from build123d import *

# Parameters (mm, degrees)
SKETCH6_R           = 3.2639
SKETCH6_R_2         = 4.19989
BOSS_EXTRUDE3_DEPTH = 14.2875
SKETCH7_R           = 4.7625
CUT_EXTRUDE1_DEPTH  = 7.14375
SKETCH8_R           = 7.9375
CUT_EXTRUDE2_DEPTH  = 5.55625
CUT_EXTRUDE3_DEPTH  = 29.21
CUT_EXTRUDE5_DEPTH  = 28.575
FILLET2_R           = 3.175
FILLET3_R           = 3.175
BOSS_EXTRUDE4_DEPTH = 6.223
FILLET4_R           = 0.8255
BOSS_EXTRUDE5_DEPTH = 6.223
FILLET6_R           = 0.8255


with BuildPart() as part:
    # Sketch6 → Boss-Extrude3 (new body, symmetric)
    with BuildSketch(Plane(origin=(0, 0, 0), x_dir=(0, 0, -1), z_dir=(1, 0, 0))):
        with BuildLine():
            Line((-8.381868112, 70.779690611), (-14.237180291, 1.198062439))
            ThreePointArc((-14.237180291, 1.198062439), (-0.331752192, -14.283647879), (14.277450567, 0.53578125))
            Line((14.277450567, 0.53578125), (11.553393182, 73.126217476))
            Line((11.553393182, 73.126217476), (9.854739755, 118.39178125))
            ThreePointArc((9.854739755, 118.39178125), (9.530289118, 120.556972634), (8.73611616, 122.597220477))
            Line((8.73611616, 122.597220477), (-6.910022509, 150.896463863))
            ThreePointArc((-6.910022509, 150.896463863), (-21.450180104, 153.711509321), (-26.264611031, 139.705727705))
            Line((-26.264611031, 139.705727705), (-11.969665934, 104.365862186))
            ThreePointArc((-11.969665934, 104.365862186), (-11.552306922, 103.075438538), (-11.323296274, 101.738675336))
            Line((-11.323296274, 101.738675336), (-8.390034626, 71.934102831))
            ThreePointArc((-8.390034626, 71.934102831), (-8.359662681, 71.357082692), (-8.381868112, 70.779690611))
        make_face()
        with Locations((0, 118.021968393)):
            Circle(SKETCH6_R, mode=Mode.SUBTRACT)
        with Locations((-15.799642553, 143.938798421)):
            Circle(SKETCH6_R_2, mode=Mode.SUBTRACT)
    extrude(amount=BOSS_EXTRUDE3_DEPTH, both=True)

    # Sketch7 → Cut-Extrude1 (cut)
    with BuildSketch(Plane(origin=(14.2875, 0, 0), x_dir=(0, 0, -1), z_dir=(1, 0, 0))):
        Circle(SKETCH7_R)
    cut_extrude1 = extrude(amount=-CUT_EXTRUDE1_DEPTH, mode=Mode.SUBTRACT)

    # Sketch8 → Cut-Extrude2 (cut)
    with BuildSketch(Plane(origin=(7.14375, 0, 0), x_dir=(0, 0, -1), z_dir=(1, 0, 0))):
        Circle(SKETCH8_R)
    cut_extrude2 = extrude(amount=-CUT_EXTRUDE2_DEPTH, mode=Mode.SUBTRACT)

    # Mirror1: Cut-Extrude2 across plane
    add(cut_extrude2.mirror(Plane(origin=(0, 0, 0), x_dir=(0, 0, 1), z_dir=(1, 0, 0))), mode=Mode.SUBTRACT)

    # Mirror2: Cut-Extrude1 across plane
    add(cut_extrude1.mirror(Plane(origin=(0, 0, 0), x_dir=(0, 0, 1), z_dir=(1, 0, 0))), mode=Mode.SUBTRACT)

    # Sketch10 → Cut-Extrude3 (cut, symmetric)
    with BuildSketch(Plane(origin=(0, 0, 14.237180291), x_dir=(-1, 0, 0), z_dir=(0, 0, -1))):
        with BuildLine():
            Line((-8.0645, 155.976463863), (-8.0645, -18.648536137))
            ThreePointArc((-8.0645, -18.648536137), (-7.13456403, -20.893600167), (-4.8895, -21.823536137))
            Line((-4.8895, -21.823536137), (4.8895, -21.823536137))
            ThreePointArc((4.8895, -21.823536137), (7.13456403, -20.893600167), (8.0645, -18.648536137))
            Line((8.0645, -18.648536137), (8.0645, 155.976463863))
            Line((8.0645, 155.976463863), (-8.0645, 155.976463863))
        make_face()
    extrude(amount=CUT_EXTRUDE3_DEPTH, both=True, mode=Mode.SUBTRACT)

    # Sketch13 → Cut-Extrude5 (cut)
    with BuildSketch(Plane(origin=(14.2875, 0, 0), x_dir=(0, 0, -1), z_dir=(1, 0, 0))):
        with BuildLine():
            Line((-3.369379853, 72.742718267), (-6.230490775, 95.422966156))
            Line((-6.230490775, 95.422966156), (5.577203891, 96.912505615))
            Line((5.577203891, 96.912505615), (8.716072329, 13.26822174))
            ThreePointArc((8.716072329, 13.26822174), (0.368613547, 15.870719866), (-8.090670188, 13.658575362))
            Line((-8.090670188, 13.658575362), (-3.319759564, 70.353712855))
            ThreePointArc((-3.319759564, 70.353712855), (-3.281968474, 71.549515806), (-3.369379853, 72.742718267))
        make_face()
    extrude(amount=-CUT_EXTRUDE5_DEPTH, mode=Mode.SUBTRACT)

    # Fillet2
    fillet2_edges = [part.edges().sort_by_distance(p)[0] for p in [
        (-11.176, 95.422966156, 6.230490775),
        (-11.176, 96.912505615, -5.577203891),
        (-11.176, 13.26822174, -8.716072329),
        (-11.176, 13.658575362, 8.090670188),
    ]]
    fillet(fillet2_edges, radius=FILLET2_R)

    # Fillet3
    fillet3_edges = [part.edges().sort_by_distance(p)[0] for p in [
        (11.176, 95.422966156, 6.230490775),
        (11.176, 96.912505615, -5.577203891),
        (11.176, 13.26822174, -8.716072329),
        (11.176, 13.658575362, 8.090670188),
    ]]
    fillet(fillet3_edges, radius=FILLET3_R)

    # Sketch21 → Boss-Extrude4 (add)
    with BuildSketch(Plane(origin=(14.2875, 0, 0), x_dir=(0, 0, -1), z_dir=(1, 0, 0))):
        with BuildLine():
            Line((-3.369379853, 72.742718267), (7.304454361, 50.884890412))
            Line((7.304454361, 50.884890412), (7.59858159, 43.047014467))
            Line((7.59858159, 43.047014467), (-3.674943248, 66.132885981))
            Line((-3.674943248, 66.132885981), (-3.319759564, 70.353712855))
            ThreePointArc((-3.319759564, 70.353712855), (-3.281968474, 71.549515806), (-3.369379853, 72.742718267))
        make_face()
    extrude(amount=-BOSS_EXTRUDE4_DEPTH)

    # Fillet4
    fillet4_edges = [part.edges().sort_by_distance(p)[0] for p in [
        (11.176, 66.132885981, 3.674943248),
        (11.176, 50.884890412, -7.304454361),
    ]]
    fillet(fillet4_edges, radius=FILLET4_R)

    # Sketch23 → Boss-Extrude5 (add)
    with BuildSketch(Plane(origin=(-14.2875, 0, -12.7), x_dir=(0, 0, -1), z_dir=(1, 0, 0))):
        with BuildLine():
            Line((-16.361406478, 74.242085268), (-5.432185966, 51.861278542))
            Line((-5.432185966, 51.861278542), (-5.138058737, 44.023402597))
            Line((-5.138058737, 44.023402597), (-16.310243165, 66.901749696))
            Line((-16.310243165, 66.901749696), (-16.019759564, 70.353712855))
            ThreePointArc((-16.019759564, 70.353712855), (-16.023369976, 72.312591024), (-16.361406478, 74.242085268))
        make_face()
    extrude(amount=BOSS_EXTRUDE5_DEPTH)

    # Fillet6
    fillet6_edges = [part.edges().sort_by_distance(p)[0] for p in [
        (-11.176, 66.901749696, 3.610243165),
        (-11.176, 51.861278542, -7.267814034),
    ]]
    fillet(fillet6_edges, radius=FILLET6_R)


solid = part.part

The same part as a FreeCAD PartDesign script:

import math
import FreeCAD as App
import Part
import Sketcher
Q = App.Units.Quantity


def edges_at(feature, points):
    """Names of the edges that pass closest to the given points."""
    edges = feature.Shape.Edges
    near = lambda p: min(range(len(edges)), key=lambda i: edges[i].distToShape(Part.Vertex(*p))[0])
    return sorted({f"Edge{near(p) + 1}" for p in points})

doc = App.newDocument("Part")
params = doc.addObject("Spreadsheet::Sheet", "Params")
for row, (alias, value) in enumerate([
    ("sketch1_radius", "0.25 in"),
    ("sketch1_diameter", "0.257 in"),
    ("sketch1_radius2", "0.5625 in"),
    ("pad1_length", "1.125 in"),
    ("sketch2_diameter", "0.375 in"),
    ("pocket1_length", "0.28125 in"),
    ("sketch3_diameter", "0.625 in"),
    ("pocket2_length", "0.21875 in"),
    ("sketch4_radius", "0.125 in"),
    ("sketch4_width", "0.385 in"),
    ("pocket3_length", "2.3 in"),
    ("sketch5_radius", "0.45 in"),
    ("sketch5_radius2", "0.625 in"),
    ("sketch5_length", "0.9 in"),
    ("pocket4_length", "1.125 in"),
    ("fillet_radius", "0.125 in"),
    ("fillet2_radius", "0.125 in"),
    ("sketch6_radius", "0.45 in"),
    ("pad2_length", "0.245 in"),
    ("fillet3_radius", "0.0325 in"),
    ("sketch7_radius", "0.45 in"),
    ("pad3_length", "0.245 in"),
    ("fillet4_radius", "0.0325 in"),
], start=1):
    params.set(f"A{row}", alias)
    params.set(f"B{row}", "=" + value)
    params.setAlias(f"B{row}", alias)

body = doc.addObject("PartDesign::Body", "Body")
body.AllowCompound = True

sketch1 = body.newObject("Sketcher::SketchObject", "Sketch")
sketch1.AttachmentSupport = (doc.getObject("YZ_Plane"), [""])
sketch1.MapMode = "FlatFace"
sketch1.addGeometry([
    Part.LineSegment(App.Vector(70.8, 8.4, 0), App.Vector(1.2, 14.2, 0)),
    Part.ArcOfCircle(Part.Circle(App.Vector(0, 0, 0), App.Vector(0, 0, 1), 14.3), math.radians(85), math.radians(272)),
    Part.LineSegment(App.Vector(0.5, -14.3, 0), App.Vector(73.1, -11.6, 0)),
    Part.LineSegment(App.Vector(73.1, -11.6, 0), App.Vector(118.4, -9.9, 0)),
    Part.ArcOfCircle(Part.Circle(App.Vector(118, 0, 0), App.Vector(0, 0, 1), 9.9), math.radians(-88), math.radians(-62)),
    Part.LineSegment(App.Vector(122.6, -8.7, 0), App.Vector(150.9, 6.9, 0)),
    Part.ArcOfCircle(Part.Circle(App.Vector(143.9, 15.8, 0), App.Vector(0, 0, 1), 11.3), math.radians(-52), math.radians(112)),
    Part.LineSegment(App.Vector(139.7, 26.3, 0), App.Vector(104.4, 12, 0)),
    Part.ArcOfCircle(Part.Circle(App.Vector(100.8, 20.8, 0), App.Vector(0, 0, 1), 9.5), math.radians(-84.38), math.radians(-67.98)),
    Part.LineSegment(App.Vector(101.7, 11.3, 0), App.Vector(71.9, 8.4, 0)),
    Part.ArcOfCircle(Part.Circle(App.Vector(71.3, 14.7, 0), App.Vector(0, 0, 1), 6.4), math.radians(-94.81), math.radians(-84.38)),
    Part.Circle(App.Vector(118, 0, 0), App.Vector(0, 0, 1), 3.3),
    Part.Circle(App.Vector(143.9, 15.8, 0), App.Vector(0, 0, 1), 4.2),
], False)
sketch1.addConstraint([
    Sketcher.Constraint("Tangent", 0, 2, 1, 1),
    Sketcher.Constraint("Tangent", 1, 2, 2, 1),
    Sketcher.Constraint("Coincident", 2, 2, 3, 1),
    Sketcher.Constraint("Tangent", 3, 2, 4, 1),
    Sketcher.Constraint("Coincident", 4, 2, 5, 1),
    Sketcher.Constraint("Coincident", 5, 2, 6, 1),
    Sketcher.Constraint("Tangent", 6, 2, 7, 1),
    Sketcher.Constraint("Tangent", 7, 2, 8, 2),
    Sketcher.Constraint("Tangent", 8, 1, 9, 1),
    Sketcher.Constraint("Tangent", 9, 2, 10, 2),
    Sketcher.Constraint("Tangent", 10, 1, 0, 1),
    Sketcher.Constraint("Coincident", 1, 3, -1, 1),
    Sketcher.Constraint("Coincident", 11, 3, 4, 3),
    Sketcher.Constraint("Coincident", 12, 3, 6, 3),
    Sketcher.Constraint("PointOnObject", 4, 3, -1),
    Sketcher.Constraint("Parallel", 2, 3),
    Sketcher.Constraint("Radius", 10, Q("0.25 in")),
    Sketcher.Constraint("Diameter", 11, Q("0.257 in")),
    Sketcher.Constraint("Radius", 1, Q("0.5625 in")),
    Sketcher.Constraint("Diameter", 12, Q("0.3307 in")),
    Sketcher.Constraint("Radius", 4, 9.861676),
    Sketcher.Constraint("Radius", 6, 11.288687),
    Sketcher.Constraint("Radius", 8, 9.483055),
    Sketcher.Constraint("DistanceX", -1, 1, 6, 3, 143.938798),
    Sketcher.Constraint("DistanceX", 0, 2, 10, 3, 70.1141),
    Sketcher.Constraint("DistanceX", 8, 3, 8, 1, 0.928802),
    Sketcher.Constraint("Distance", 2, 72.64153),
    Sketcher.Constraint("DistanceX", -1, 1, 4, 3, 118.021968),
    Sketcher.Constraint("DistanceY", -1, 1, 0, 2, 14.23718),
    Sketcher.Constraint("DistanceX", -1, 1, 4, 2, 122.59722),
    Sketcher.Constraint("DistanceY", -1, 1, 6, 2, 26.264611),
    Sketcher.Constraint("DistanceX", 10, 3, 8, 3, 29.497711),
    Sketcher.Constraint("DistanceY", 5, 2, 12, 3, 8.88962),
])
sketch1.setExpression("Constraints[16]", "Params.sketch1_radius")
sketch1.setExpression("Constraints[17]", "Params.sketch1_diameter")
sketch1.setExpression("Constraints[18]", "Params.sketch1_radius2")
pad1 = body.newObject("PartDesign::Pad", "Pad")
pad1.Profile = sketch1
pad1.setExpression("Length", "Params.pad1_length")
pad1.Midplane = True

sketch2 = body.newObject("Sketcher::SketchObject", "Sketch001")
sketch2.AttachmentSupport = (doc.getObject("YZ_Plane"), [""])
sketch2.MapMode = "FlatFace"
sketch2.AttachmentOffset = App.Placement(App.Vector(0, 0, 0.5625 * 25.4), App.Rotation())
sketch2.addGeometry(Part.Circle(App.Vector(0, 0, 0), App.Vector(0, 0, 1), 4.8), False)
sketch2.addConstraint([
    Sketcher.Constraint("Coincident", 0, 3, -1, 1),
    Sketcher.Constraint("Diameter", 0, Q("0.375 in")),
])
sketch2.setExpression("Constraints[1]", "Params.sketch2_diameter")
pocket1 = body.newObject("PartDesign::Pocket", "Pocket")
pocket1.Profile = sketch2
pocket1.setExpression("Length", "Params.pocket1_length")

sketch3 = body.newObject("Sketcher::SketchObject", "Sketch002")
sketch3.AttachmentSupport = (doc.getObject("YZ_Plane"), [""])
sketch3.MapMode = "FlatFace"
sketch3.AttachmentOffset = App.Placement(App.Vector(0, 0, 0.28125 * 25.4), App.Rotation())
sketch3.addGeometry(Part.Circle(App.Vector(0, 0, 0), App.Vector(0, 0, 1), 8), False)
sketch3.addConstraint([
    Sketcher.Constraint("Coincident", 0, 3, -1, 1),
    Sketcher.Constraint("Diameter", 0, Q("0.625 in")),
])
sketch3.setExpression("Constraints[1]", "Params.sketch3_diameter")
pocket2 = body.newObject("PartDesign::Pocket", "Pocket001")
pocket2.Profile = sketch3
pocket2.setExpression("Length", "Params.pocket2_length")
doc.recompute()

mirrored = body.newObject("PartDesign::Mirrored", "Mirrored")
mirrored.Originals = [pocket2]
mirrored.MirrorPlane = (doc.getObject("YZ_Plane"), [""])
body.Tip = mirrored
doc.recompute()

mirrored2 = body.newObject("PartDesign::Mirrored", "Mirrored001")
mirrored2.Originals = [pocket1]
mirrored2.MirrorPlane = (doc.getObject("YZ_Plane"), [""])
body.Tip = mirrored2

sketch4 = body.newObject("Sketcher::SketchObject", "Sketch003")
sketch4.AttachmentSupport = (doc.getObject("XY_Plane"), [""])
sketch4.MapMode = "FlatFace"
sketch4.AttachmentOffset = App.Placement(App.Vector(0, 0, 14.23718), App.Rotation())
sketch4.addGeometry([
    Part.LineSegment(App.Vector(8.1, 156, 0), App.Vector(8.1, -18.6, 0)),
    Part.ArcOfCircle(Part.Circle(App.Vector(4.9, -18.6, 0), App.Vector(0, 0, 1), 3.2), math.radians(-90), math.radians(0)),
    Part.LineSegment(App.Vector(4.9, -21.8, 0), App.Vector(-4.9, -21.8, 0)),
    Part.ArcOfCircle(Part.Circle(App.Vector(-4.9, -18.6, 0), App.Vector(0, 0, 1), 3.2), math.radians(-180), math.radians(-90)),
    Part.LineSegment(App.Vector(-8.1, -18.6, 0), App.Vector(-8.1, 156, 0)),
    Part.LineSegment(App.Vector(-8.1, 156, 0), App.Vector(8.1, 156, 0)),
], False)
sketch4.addConstraint([
    Sketcher.Constraint("Tangent", 0, 2, 1, 2),
    Sketcher.Constraint("Tangent", 1, 1, 2, 1),
    Sketcher.Constraint("Tangent", 2, 2, 3, 2),
    Sketcher.Constraint("Tangent", 3, 1, 4, 1),
    Sketcher.Constraint("Coincident", 4, 2, 5, 1),
    Sketcher.Constraint("Coincident", 5, 2, 0, 1),
    Sketcher.Constraint("Vertical", 0),
    Sketcher.Constraint("Horizontal", 2),
    Sketcher.Constraint("Vertical", 4),
    Sketcher.Constraint("Horizontal", 5),
    Sketcher.Constraint("Equal", 1, 3),
    Sketcher.Constraint("Radius", 1, Q("0.125 in")),
    Sketcher.Constraint("DistanceY", 2, 2, 4, 2, Q("7 in")),
    Sketcher.Constraint("DistanceX", 2, 2, 2, 1, Q("0.385 in")),
    Sketcher.Constraint("DistanceX", -1, 1, 1, 3, Q("0.1925 in")),
    Sketcher.Constraint("DistanceY", 1, 3, -1, 1, 18.648536),
])
sketch4.setExpression("Constraints[11]", "Params.sketch4_radius")
sketch4.setExpression("Constraints[13]", "Params.sketch4_width")
pocket3 = body.newObject("PartDesign::Pocket", "Pocket002")
pocket3.Profile = sketch4
pocket3.setExpression("Length", "Params.pocket3_length")
pocket3.Midplane = True

sketch5 = body.newObject("Sketcher::SketchObject", "Sketch004")
sketch5.AttachmentSupport = (doc.getObject("YZ_Plane"), [""])
sketch5.MapMode = "FlatFace"
sketch5.AttachmentOffset = App.Placement(App.Vector(0, 0, 0.5625 * 25.4), App.Rotation())
sketch5.addGeometry([
    Part.LineSegment(App.Vector(95.422966, 6.230491, 0), App.Vector(72.742718, 3.36938, 0)),
    Part.ArcOfCircle(Part.Circle(App.Vector(71.312163, 14.709504, 0), App.Vector(0, 0, 1), 11.43), math.radians(-94.810122), math.radians(-82.810122)),
    Part.LineSegment(App.Vector(70.353713, 3.31976, 0), App.Vector(13.658575, 8.09067, 0)),
    Part.ArcOfCircle(Part.Circle(App.Vector(0, 0, 0), App.Vector(0, 0, 1), 15.875), math.radians(-33.301447), math.radians(30.64042)),
    Part.LineSegment(App.Vector(13.268222, -8.716072, 0), App.Vector(96.912506, -5.577204, 0)),
    Part.LineSegment(App.Vector(96.912506, -5.577204, 0), App.Vector(95.422966, 6.230491, 0)),
], False)
sketch5.addConstraint([
    Sketcher.Constraint("Coincident", 0, 2, 1, 2),
    Sketcher.Constraint("Coincident", 1, 1, 2, 1),
    Sketcher.Constraint("Coincident", 2, 2, 3, 2),
    Sketcher.Constraint("Coincident", 3, 1, 4, 1),
    Sketcher.Constraint("Coincident", 4, 2, 5, 1),
    Sketcher.Constraint("Coincident", 5, 2, 0, 1),
    Sketcher.Constraint("Coincident", 3, 3, -1, 1),
    Sketcher.Constraint("Radius", 1, Q("0.45 in")),
    Sketcher.Constraint("Radius", 3, Q("0.625 in")),
    Sketcher.Constraint("Distance", 0, Q("0.9 in")),
    Sketcher.Constraint("Distance", 4, Q("3.2953999 in")),
    Sketcher.Constraint("Distance", 2, 56.89552),
    Sketcher.Constraint("DistanceX", -1, 1, 0, 2, 72.742718),
    Sketcher.Constraint("DistanceY", -1, 1, 0, 2, 3.36938),
    Sketcher.Constraint("DistanceY", -1, 1, 1, 1, 3.31976),
    Sketcher.Constraint("DistanceY", -1, 1, 2, 2, 8.09067),
    Sketcher.Constraint("DistanceX", -1, 1, 3, 1, 13.268222),
    Sketcher.Constraint("DistanceY", -1, 1, 5, 2, 6.230491),
    Sketcher.Constraint("DistanceY", 3, 1, 4, 2, 3.138868),
])
sketch5.setExpression("Constraints[7]", "Params.sketch5_radius")
sketch5.setExpression("Constraints[8]", "Params.sketch5_radius2")
sketch5.setExpression("Constraints[9]", "Params.sketch5_length")
pocket4 = body.newObject("PartDesign::Pocket", "Pocket003")
pocket4.Profile = sketch5
pocket4.setExpression("Length", "Params.pocket4_length")
doc.recompute()

fillet = body.newObject("PartDesign::Fillet", "Fillet")
fillet.Base = (pocket4, edges_at(pocket4, [
    (-11.176, 95.423, 6.23),
    (-11.176, 96.913, -5.577),
    (-11.176, 13.268, -8.716),
    (-11.176, 13.659, 8.091),
]))
fillet.setExpression("Radius", "Params.fillet_radius")
doc.recompute()

fillet2 = body.newObject("PartDesign::Fillet", "Fillet001")
fillet2.Base = (fillet, edges_at(fillet, [
    (11.176, 95.423, 6.23),
    (11.176, 96.913, -5.577),
    (11.176, 13.268, -8.716),
    (11.176, 13.659, 8.091),
]))
fillet2.setExpression("Radius", "Params.fillet2_radius")

sketch6 = body.newObject("Sketcher::SketchObject", "Sketch005")
sketch6.AttachmentSupport = (doc.getObject("YZ_Plane"), [""])
sketch6.MapMode = "FlatFace"
sketch6.AttachmentOffset = App.Placement(App.Vector(0, 0, 0.5625 * 25.4), App.Rotation())
sketch6.addGeometry([
    Part.LineSegment(App.Vector(50.9, -7.3, 0), App.Vector(72.7, 3.4, 0)),
    Part.ArcOfCircle(Part.Circle(App.Vector(71.3, 14.7, 0), App.Vector(0, 0, 1), 11.4), math.radians(-94.81), math.radians(-82.81)),
    Part.LineSegment(App.Vector(70.4, 3.3, 0), App.Vector(66.1, 3.7, 0)),
    Part.LineSegment(App.Vector(66.1, 3.7, 0), App.Vector(43, -7.6, 0)),
    Part.LineSegment(App.Vector(43, -7.6, 0), App.Vector(50.9, -7.3, 0)),
], False)
sketch6.addConstraint([
    Sketcher.Constraint("Coincident", 0, 2, 1, 2),
    Sketcher.Constraint("Tangent", 1, 1, 2, 1),
    Sketcher.Constraint("Coincident", 2, 2, 3, 1),
    Sketcher.Constraint("Coincident", 3, 2, 4, 1),
    Sketcher.Constraint("Coincident", 4, 2, 0, 1),
    Sketcher.Constraint("Parallel", 0, 3),
    Sketcher.Constraint("Radius", 1, Q("0.45 in")),
    Sketcher.Constraint("DistanceX", 3, 2, 1, 1, 27.306698),
    Sketcher.Constraint("Distance", 0, 24.324789),
    Sketcher.Constraint("DistanceX", -1, 1, 0, 2, 72.742718),
    Sketcher.Constraint("DistanceY", -1, 1, 0, 2, 3.36938),
    Sketcher.Constraint("DistanceY", -1, 1, 1, 1, 3.31976),
    Sketcher.Constraint("DistanceY", 3, 2, -1, 1, 7.598582),
    Sketcher.Constraint("DistanceX", -1, 1, 4, 2, 50.88489),
    Sketcher.Constraint("DistanceX", 1, 1, 1, 3, 0.95845),
])
sketch6.setExpression("Constraints[6]", "Params.sketch6_radius")
pad2 = body.newObject("PartDesign::Pad", "Pad001")
pad2.Profile = sketch6
pad2.setExpression("Length", "Params.pad2_length")
pad2.Reversed = True
doc.recompute()

fillet3 = body.newObject("PartDesign::Fillet", "Fillet002")
fillet3.Base = (pad2, edges_at(pad2, [(11.176, 66.133, 3.675), (11.176, 50.885, -7.304)]))
fillet3.setExpression("Radius", "Params.fillet3_radius")

sketch7 = body.newObject("Sketcher::SketchObject", "Sketch006")
sketch7.AttachmentSupport = (doc.getObject("YZ_Plane"), [""])
sketch7.MapMode = "FlatFace"
sketch7.AttachmentOffset = App.Placement(App.Vector(0, 0, -0.5625 * 25.4), App.Rotation())
sketch7.addGeometry([
    Part.LineSegment(App.Vector(51.9, -7.3, 0), App.Vector(74.2, 3.7, 0)),
    Part.ArcOfCircle(Part.Circle(App.Vector(71.3, 14.7, 0), App.Vector(0, 0, 1), 11.4), math.radians(-94.81), math.radians(-75.15)),
    Part.LineSegment(App.Vector(70.4, 3.3, 0), App.Vector(66.9, 3.6, 0)),
    Part.LineSegment(App.Vector(66.9, 3.6, 0), App.Vector(44, -7.6, 0)),
    Part.LineSegment(App.Vector(44, -7.6, 0), App.Vector(51.9, -7.3, 0)),
], False)
sketch7.addConstraint([
    Sketcher.Constraint("Coincident", 0, 2, 1, 2),
    Sketcher.Constraint("Tangent", 1, 1, 2, 1),
    Sketcher.Constraint("Coincident", 2, 2, 3, 1),
    Sketcher.Constraint("Coincident", 3, 2, 4, 1),
    Sketcher.Constraint("Coincident", 4, 2, 0, 1),
    Sketcher.Constraint("Parallel", 0, 3),
    Sketcher.Constraint("Radius", 1, Q("0.45 in")),
    Sketcher.Constraint("DistanceY", 3, 2, 1, 1, 10.881701),
    Sketcher.Constraint("Distance", 3, 25.460488),
    Sketcher.Constraint("DistanceY", -1, 1, 1, 1, 3.31976),
    Sketcher.Constraint("DistanceX", -1, 1, 2, 2, 66.90175),
    Sketcher.Constraint("DistanceX", -1, 1, 4, 2, 51.861279),
    Sketcher.Constraint("DistanceX", 1, 1, 1, 3, 0.95845),
    Sketcher.Constraint("DistanceY", 2, 2, 1, 3, 11.099261),
    Sketcher.Constraint("DistanceY", 4, 2, 0, 2, 10.929221),
])
sketch7.setExpression("Constraints[6]", "Params.sketch7_radius")
pad3 = body.newObject("PartDesign::Pad", "Pad002")
pad3.Profile = sketch7
pad3.setExpression("Length", "Params.pad3_length")
doc.recompute()

fillet4 = body.newObject("PartDesign::Fillet", "Fillet003")
fillet4.Base = (pad3, edges_at(pad3, [(-11.176, 66.902, 3.61), (-11.176, 51.861, -7.268)]))
fillet4.setExpression("Radius", "Params.fillet4_radius")

doc.recompute()
